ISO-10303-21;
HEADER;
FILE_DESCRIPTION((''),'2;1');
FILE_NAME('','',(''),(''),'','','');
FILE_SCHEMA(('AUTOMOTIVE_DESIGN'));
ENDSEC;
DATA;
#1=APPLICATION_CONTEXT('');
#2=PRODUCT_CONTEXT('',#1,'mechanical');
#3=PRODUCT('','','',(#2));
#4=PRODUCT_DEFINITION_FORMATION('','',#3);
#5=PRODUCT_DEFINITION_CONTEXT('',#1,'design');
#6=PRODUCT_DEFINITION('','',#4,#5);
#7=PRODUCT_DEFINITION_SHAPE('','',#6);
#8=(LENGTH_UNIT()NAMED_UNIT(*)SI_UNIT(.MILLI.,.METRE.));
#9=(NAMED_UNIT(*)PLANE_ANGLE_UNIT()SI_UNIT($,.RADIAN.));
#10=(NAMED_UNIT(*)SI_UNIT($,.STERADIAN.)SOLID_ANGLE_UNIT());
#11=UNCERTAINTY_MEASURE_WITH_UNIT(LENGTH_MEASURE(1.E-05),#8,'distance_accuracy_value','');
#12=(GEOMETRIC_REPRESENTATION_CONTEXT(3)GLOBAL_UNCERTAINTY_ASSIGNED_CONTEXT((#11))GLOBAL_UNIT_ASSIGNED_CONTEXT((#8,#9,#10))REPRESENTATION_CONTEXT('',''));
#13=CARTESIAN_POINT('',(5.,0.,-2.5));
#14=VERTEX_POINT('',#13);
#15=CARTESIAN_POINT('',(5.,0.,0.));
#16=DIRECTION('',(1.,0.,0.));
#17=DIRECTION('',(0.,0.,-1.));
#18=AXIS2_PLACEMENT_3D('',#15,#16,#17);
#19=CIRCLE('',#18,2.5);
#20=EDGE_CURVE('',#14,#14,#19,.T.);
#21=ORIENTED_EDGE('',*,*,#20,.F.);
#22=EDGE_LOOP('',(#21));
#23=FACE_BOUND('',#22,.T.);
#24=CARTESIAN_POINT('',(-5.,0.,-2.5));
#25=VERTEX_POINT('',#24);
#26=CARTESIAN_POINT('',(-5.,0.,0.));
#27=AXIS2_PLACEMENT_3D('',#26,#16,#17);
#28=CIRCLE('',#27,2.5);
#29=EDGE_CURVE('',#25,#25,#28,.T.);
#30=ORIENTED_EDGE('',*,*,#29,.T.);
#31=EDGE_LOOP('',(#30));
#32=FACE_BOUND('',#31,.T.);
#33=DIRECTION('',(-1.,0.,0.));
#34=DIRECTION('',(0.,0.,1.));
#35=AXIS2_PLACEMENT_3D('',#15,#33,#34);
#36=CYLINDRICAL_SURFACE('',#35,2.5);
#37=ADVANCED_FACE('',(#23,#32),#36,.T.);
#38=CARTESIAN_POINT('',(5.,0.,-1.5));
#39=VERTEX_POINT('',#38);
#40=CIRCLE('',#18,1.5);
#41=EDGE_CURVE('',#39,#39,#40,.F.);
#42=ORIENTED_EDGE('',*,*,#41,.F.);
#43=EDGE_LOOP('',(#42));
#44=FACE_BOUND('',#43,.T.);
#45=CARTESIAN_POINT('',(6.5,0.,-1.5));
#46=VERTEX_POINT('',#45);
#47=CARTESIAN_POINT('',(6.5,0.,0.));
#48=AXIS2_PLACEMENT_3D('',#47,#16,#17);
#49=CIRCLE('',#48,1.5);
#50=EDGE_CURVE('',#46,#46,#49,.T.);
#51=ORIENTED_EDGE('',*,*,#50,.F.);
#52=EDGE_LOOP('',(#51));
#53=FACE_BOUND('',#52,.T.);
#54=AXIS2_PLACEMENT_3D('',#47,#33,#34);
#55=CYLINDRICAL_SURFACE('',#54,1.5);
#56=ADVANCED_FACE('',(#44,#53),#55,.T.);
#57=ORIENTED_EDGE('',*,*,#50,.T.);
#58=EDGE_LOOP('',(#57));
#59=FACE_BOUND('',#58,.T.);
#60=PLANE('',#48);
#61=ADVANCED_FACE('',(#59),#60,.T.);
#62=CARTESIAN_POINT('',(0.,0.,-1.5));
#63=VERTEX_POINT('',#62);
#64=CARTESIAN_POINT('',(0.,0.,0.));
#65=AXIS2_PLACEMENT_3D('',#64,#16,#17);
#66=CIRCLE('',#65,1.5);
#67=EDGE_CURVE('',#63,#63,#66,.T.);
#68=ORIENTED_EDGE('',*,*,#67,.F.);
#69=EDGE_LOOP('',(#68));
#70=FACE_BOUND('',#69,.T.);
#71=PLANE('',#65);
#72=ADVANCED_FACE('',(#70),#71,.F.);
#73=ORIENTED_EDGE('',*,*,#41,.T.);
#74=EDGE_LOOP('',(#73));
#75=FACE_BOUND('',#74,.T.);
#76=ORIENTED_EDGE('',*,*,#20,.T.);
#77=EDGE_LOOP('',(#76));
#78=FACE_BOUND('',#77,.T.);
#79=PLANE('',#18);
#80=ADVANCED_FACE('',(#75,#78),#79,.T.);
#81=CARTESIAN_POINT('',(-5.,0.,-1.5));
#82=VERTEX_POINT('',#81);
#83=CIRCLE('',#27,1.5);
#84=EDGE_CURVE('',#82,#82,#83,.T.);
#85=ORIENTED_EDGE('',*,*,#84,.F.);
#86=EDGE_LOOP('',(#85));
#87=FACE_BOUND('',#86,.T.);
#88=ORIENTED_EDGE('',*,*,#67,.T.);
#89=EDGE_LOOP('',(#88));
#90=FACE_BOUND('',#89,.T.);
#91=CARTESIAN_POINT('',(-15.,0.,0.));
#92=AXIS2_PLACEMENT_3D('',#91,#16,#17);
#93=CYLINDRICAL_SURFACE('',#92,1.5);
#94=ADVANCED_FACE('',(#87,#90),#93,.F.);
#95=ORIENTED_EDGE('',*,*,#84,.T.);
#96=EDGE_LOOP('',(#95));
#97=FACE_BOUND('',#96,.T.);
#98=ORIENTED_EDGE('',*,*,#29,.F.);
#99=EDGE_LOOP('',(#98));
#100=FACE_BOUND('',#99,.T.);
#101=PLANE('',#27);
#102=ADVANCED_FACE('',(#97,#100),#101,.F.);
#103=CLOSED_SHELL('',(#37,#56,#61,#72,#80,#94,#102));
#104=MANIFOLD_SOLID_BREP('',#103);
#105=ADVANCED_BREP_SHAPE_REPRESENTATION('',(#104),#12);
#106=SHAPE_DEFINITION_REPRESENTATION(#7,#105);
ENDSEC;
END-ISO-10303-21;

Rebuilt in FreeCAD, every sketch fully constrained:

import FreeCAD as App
import Part
import Sketcher
from FreeCAD import Vector

doc = App.newDocument("Part")
body = doc.addObject("PartDesign::Body", "Body")

sketch1 = body.newObject("Sketcher::SketchObject", "Sketch")
sketch1.AttachmentSupport = (doc.getObject("YZ_Plane"), [""])
sketch1.MapMode = "FlatFace"
sketch1.addGeometry(Part.Circle(Vector(0, 0, 0), Vector(0, 0, 1), 2.5), False)
sketch1.addConstraint(Sketcher.Constraint("Coincident", 0, 3, -1, 1))
sketch1.addConstraint(Sketcher.Constraint("Diameter", 0, 5.0))
pad1 = body.newObject("PartDesign::Pad", "Pad")
pad1.Profile = sketch1
pad1.Length = 10
pad1.Midplane = True

sketch2 = body.newObject("Sketcher::SketchObject", "Sketch001")
sketch2.AttachmentSupport = (doc.getObject("YZ_Plane"), [""])
sketch2.MapMode = "FlatFace"
sketch2.addGeometry(Part.Circle(Vector(0, 0, 0), Vector(0, 0, 1), 1.5), False)
sketch2.addConstraint(Sketcher.Constraint("Coincident", 0, 3, -1, 1))
sketch2.addConstraint(Sketcher.Constraint("Diameter", 0, 3.0))
pocket1 = body.newObject("PartDesign::Pocket", "Pocket")
pocket1.Profile = sketch2
pocket1.Length = 15

sketch3 = body.newObject("Sketcher::SketchObject", "Sketch002")
sketch3.AttachmentSupport = (doc.getObject("YZ_Plane"), [""])
sketch3.MapMode = "FlatFace"
sketch3.AttachmentOffset = App.Placement(Vector(0, 0, 5), App.Rotation())
sketch3.addGeometry(Part.Circle(Vector(0, 0, 0), Vector(0, 0, 1), 1.5), False)
sketch3.addConstraint(Sketcher.Constraint("Coincident", 0, 3, -1, 1))
sketch3.addConstraint(Sketcher.Constraint("Diameter", 0, 3.0))
pad2 = body.newObject("PartDesign::Pad", "Pad001")
pad2.Profile = sketch3
pad2.Length = 3
pad2.Midplane = True

doc.recompute()
